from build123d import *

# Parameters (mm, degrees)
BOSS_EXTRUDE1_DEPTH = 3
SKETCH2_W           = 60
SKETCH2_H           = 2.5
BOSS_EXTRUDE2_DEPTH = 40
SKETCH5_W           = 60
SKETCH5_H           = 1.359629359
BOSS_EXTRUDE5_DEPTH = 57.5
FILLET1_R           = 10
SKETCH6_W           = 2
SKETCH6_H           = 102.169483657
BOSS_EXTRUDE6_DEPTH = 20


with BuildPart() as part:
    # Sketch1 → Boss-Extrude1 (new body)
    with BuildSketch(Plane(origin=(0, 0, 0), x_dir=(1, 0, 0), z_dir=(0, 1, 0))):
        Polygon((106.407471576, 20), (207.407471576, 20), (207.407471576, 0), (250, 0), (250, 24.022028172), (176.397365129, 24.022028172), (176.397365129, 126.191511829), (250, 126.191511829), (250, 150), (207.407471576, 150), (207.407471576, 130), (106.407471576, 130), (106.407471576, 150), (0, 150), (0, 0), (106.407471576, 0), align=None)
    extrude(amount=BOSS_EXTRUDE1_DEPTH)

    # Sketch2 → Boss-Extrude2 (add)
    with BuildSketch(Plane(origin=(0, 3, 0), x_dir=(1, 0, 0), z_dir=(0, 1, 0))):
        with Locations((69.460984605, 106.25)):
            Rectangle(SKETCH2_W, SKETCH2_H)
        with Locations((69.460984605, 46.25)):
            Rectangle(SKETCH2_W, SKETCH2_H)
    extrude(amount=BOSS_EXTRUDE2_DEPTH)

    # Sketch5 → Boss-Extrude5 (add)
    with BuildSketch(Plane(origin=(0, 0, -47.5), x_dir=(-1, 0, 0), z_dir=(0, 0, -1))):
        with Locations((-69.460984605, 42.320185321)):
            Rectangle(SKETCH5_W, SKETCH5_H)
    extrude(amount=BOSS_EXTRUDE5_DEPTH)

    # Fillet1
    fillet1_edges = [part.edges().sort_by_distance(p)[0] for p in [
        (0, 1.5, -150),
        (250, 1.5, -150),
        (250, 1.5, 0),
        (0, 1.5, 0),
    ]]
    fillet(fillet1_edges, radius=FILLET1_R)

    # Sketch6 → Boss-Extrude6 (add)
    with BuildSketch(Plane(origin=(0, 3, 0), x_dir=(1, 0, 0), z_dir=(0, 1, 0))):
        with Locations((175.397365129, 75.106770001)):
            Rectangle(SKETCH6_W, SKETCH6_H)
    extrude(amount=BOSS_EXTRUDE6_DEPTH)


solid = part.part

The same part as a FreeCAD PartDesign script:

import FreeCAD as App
import Part
import Sketcher
from FreeCAD import Vector


def edges_at(feature, points):
    """Names of the edges that pass closest to the given points."""
    edges = feature.Shape.Edges
    near = lambda p: min(range(len(edges)), key=lambda i: edges[i].distToShape(Part.Vertex(*p))[0])
    return sorted({f"Edge{near(p) + 1}" for p in points})


def add_polygon(sketch, points):
    """Adds a closed chain of lines whose ends are joined by coincident constraints."""
    first, n = sketch.GeometryCount, len(points)
    for a, b in zip(points, points[1:] + points[:1]):
        sketch.addGeometry(Part.LineSegment(App.Vector(*a, 0), App.Vector(*b, 0)), False)
    for i in range(n):
        sketch.addConstraint(Sketcher.Constraint("Coincident", first + i, 2, first + (i + 1) % n, 1))

doc = App.newDocument("Part")
body = doc.addObject("PartDesign::Body", "Body")

sketch1 = doc.addObject("Sketcher::SketchObject", "Sketch")
body.addObject(sketch1)
sketch1.AttachmentSupport = (doc.XZ_Plane, [""])
sketch1.MapMode = "FlatFace"
add_polygon(sketch1, [(106.407472, -20), (207.407472, -20), (207.407472, 0), (250, 0), (250, -24.022028), (176.397365, -24.022028), (176.397365, -126.191512), (250, -126.191512), (250, -150), (207.407472, -150), (207.407472, -130), (106.407472, -130), (106.407472, -150), (0, -150), (0, 0), (106.407472, 0)])
sketch1.addConstraint([
    Sketcher.Constraint("Horizontal", 0),
    Sketcher.Constraint("Vertical", 1),
    Sketcher.Constraint("Horizontal", 2),
    Sketcher.Constraint("Vertical", 3),
    Sketcher.Constraint("Horizontal", 4),
    Sketcher.Constraint("Vertical", 5),
    Sketcher.Constraint("Horizontal", 6),
    Sketcher.Constraint("Vertical", 7),
    Sketcher.Constraint("Horizontal", 8),
    Sketcher.Constraint("Vertical", 9),
    Sketcher.Constraint("Horizontal", 10),
    Sketcher.Constraint("Vertical", 11),
    Sketcher.Constraint("Horizontal", 12),
    Sketcher.Constraint("Vertical", 13),
    Sketcher.Constraint("Horizontal", 14),
    Sketcher.Constraint("Vertical", 15),
    Sketcher.Constraint("Coincident", 13, 2, -1, 1),
    Sketcher.Constraint("PointOnObject", 1, 2, -1),
    Sketcher.Constraint("Horizontal", 8, 2, 11, 2),
    Sketcher.Constraint("Vertical", 3, 2, 6, 2),
    Sketcher.Constraint("Vertical", 1, 2, 8, 2),
    Sketcher.Constraint("Vertical", 11, 2, 14, 2),
    Sketcher.Constraint("Equal", 1, 9),
    Sketcher.Constraint("DistanceX", 0, 1, 0, 2, 101.0),
    Sketcher.Constraint("DistanceY", 1, 1, 1, 2, 20.0),
    Sketcher.Constraint("DistanceY", 13, 1, 13, 2, 150.0),
    Sketcher.Constraint("DistanceX", -1, 1, 2, 2, 250.0),
    Sketcher.Constraint("DistanceX", 2, 1, 2, 2, 42.592528),
    Sketcher.Constraint("DistanceY", 3, 2, 3, 1, 24.022028),
    Sketcher.Constraint("DistanceY", 7, 2, 7, 1, 23.808488),
    Sketcher.Constraint("DistanceX", 4, 2, 4, 1, 73.602635),
])
pad1 = doc.addObject("PartDesign::Pad", "Pad")
body.addObject(pad1)
pad1.Profile = sketch1
pad1.Length = 3
pad1.Reversed = True

sketch2 = doc.addObject("Sketcher::SketchObject", "Sketch001")
body.addObject(sketch2)
sketch2.AttachmentSupport = (doc.XZ_Plane, [""])
sketch2.MapMode = "FlatFace"
sketch2.AttachmentOffset = App.Placement(Vector(0, 0, -3), App.Rotation())
add_polygon(sketch2, [(39.460985, -107.5), (39.460985, -105), (99.460985, -105), (99.460985, -107.5)])
add_polygon(sketch2, [(39.460985, -47.5), (39.460985, -45), (99.460985, -45), (99.460985, -47.5)])
sketch2.addConstraint([
    Sketcher.Constraint("Vertical", 0),
    Sketcher.Constraint("Horizontal", 1),
    Sketcher.Constraint("Vertical", 2),
    Sketcher.Constraint("Horizontal", 3),
    Sketcher.Constraint("Vertical", 4),
    Sketcher.Constraint("Horizontal", 5),
    Sketcher.Constraint("Vertical", 6),
    Sketcher.Constraint("Horizontal", 7),
    Sketcher.Constraint("Vertical", 3, 2, 4, 2),
    Sketcher.Constraint("Vertical", 2, 2, 5, 2),
    Sketcher.Constraint("Equal", 2, 4),
    Sketcher.Constraint("DistanceX", 1, 1, 1, 2, 60.0),
    Sketcher.Constraint("DistanceY", 0, 1, 0, 2, 2.5),
    Sketcher.Constraint("DistanceY", 0, 2, -1, 1, 105.0),
    Sketcher.Constraint("DistanceY", 4, 2, -1, 1, 45.0),
    Sketcher.Constraint("DistanceX", -1, 1, 0, 2, 39.460985),
])
pad2 = doc.addObject("PartDesign::Pad", "Pad001")
body.addObject(pad2)
pad2.Profile = sketch2
pad2.Length = 40
pad2.Reversed = True

sketch3 = doc.addObject("Sketcher::SketchObject", "Sketch002")
body.addObject(sketch3)
sketch3.AttachmentSupport = (doc.XY_Plane, [""])
sketch3.MapMode = "FlatFace"
sketch3.AttachmentOffset = App.Placement(Vector(0, 0, -47.5), App.Rotation())
add_polygon(sketch3, [(99.460985, 43), (99.460985, 41.640371), (39.460985, 41.640371), (39.460985, 43)])
sketch3.addConstraint([
    Sketcher.Constraint("Vertical", 0),
    Sketcher.Constraint("Horizontal", 1),
    Sketcher.Constraint("Vertical", 2),
    Sketcher.Constraint("Horizontal", 3),
    Sketcher.Constraint("DistanceX", 1, 2, 1, 1, 60.0),
    Sketcher.Constraint("DistanceY", -1, 1, 2, 2, 43.0),
    Sketcher.Constraint("DistanceY", 0, 2, 0, 1, 1.359629),
    Sketcher.Constraint("DistanceX", -1, 1, 0, 2, 99.460985),
])
pad3 = doc.addObject("PartDesign::Pad", "Pad002")
body.addObject(pad3)
pad3.Profile = sketch3
pad3.Length = 57.5
pad3.Reversed = True
doc.recompute()

fillet = doc.addObject("PartDesign::Fillet", "Fillet")
body.addObject(fillet)
fillet.Base = (pad3, edges_at(pad3, [
    (0, 1.5, -150),
    (250, 1.5, -150),
    (250, 1.5, 0),
    (0, 1.5, 0),
]))
fillet.Radius = 10

sketch4 = doc.addObject("Sketcher::SketchObject", "Sketch003")
body.addObject(sketch4)
sketch4.AttachmentSupport = (doc.XZ_Plane, [""])
sketch4.MapMode = "FlatFace"
sketch4.AttachmentOffset = App.Placement(Vector(0, 0, -3), App.Rotation())
add_polygon(sketch4, [(174.397365, -126.191512), (174.397365, -24.022028), (176.397365, -24.022028), (176.397365, -126.191512)])
sketch4.addConstraint([
    Sketcher.Constraint("Vertical", 0),
    Sketcher.Constraint("Horizontal", 1),
    Sketcher.Constraint("Vertical", 2),
    Sketcher.Constraint("Horizontal", 3),
    Sketcher.Constraint("DistanceX", 1, 1, 1, 2, 2.0),
    Sketcher.Constraint("DistanceY", 0, 1, 0, 2, 102.169484),
    Sketcher.Constraint("DistanceY", 0, 2, -1, 1, 24.022028),
    Sketcher.Constraint("DistanceX", -1, 1, 0, 2, 174.397365),
])
pad4 = doc.addObject("PartDesign::Pad", "Pad003")
body.addObject(pad4)
pad4.Profile = sketch4
pad4.Length = 20
pad4.Reversed = True

doc.recompute()
